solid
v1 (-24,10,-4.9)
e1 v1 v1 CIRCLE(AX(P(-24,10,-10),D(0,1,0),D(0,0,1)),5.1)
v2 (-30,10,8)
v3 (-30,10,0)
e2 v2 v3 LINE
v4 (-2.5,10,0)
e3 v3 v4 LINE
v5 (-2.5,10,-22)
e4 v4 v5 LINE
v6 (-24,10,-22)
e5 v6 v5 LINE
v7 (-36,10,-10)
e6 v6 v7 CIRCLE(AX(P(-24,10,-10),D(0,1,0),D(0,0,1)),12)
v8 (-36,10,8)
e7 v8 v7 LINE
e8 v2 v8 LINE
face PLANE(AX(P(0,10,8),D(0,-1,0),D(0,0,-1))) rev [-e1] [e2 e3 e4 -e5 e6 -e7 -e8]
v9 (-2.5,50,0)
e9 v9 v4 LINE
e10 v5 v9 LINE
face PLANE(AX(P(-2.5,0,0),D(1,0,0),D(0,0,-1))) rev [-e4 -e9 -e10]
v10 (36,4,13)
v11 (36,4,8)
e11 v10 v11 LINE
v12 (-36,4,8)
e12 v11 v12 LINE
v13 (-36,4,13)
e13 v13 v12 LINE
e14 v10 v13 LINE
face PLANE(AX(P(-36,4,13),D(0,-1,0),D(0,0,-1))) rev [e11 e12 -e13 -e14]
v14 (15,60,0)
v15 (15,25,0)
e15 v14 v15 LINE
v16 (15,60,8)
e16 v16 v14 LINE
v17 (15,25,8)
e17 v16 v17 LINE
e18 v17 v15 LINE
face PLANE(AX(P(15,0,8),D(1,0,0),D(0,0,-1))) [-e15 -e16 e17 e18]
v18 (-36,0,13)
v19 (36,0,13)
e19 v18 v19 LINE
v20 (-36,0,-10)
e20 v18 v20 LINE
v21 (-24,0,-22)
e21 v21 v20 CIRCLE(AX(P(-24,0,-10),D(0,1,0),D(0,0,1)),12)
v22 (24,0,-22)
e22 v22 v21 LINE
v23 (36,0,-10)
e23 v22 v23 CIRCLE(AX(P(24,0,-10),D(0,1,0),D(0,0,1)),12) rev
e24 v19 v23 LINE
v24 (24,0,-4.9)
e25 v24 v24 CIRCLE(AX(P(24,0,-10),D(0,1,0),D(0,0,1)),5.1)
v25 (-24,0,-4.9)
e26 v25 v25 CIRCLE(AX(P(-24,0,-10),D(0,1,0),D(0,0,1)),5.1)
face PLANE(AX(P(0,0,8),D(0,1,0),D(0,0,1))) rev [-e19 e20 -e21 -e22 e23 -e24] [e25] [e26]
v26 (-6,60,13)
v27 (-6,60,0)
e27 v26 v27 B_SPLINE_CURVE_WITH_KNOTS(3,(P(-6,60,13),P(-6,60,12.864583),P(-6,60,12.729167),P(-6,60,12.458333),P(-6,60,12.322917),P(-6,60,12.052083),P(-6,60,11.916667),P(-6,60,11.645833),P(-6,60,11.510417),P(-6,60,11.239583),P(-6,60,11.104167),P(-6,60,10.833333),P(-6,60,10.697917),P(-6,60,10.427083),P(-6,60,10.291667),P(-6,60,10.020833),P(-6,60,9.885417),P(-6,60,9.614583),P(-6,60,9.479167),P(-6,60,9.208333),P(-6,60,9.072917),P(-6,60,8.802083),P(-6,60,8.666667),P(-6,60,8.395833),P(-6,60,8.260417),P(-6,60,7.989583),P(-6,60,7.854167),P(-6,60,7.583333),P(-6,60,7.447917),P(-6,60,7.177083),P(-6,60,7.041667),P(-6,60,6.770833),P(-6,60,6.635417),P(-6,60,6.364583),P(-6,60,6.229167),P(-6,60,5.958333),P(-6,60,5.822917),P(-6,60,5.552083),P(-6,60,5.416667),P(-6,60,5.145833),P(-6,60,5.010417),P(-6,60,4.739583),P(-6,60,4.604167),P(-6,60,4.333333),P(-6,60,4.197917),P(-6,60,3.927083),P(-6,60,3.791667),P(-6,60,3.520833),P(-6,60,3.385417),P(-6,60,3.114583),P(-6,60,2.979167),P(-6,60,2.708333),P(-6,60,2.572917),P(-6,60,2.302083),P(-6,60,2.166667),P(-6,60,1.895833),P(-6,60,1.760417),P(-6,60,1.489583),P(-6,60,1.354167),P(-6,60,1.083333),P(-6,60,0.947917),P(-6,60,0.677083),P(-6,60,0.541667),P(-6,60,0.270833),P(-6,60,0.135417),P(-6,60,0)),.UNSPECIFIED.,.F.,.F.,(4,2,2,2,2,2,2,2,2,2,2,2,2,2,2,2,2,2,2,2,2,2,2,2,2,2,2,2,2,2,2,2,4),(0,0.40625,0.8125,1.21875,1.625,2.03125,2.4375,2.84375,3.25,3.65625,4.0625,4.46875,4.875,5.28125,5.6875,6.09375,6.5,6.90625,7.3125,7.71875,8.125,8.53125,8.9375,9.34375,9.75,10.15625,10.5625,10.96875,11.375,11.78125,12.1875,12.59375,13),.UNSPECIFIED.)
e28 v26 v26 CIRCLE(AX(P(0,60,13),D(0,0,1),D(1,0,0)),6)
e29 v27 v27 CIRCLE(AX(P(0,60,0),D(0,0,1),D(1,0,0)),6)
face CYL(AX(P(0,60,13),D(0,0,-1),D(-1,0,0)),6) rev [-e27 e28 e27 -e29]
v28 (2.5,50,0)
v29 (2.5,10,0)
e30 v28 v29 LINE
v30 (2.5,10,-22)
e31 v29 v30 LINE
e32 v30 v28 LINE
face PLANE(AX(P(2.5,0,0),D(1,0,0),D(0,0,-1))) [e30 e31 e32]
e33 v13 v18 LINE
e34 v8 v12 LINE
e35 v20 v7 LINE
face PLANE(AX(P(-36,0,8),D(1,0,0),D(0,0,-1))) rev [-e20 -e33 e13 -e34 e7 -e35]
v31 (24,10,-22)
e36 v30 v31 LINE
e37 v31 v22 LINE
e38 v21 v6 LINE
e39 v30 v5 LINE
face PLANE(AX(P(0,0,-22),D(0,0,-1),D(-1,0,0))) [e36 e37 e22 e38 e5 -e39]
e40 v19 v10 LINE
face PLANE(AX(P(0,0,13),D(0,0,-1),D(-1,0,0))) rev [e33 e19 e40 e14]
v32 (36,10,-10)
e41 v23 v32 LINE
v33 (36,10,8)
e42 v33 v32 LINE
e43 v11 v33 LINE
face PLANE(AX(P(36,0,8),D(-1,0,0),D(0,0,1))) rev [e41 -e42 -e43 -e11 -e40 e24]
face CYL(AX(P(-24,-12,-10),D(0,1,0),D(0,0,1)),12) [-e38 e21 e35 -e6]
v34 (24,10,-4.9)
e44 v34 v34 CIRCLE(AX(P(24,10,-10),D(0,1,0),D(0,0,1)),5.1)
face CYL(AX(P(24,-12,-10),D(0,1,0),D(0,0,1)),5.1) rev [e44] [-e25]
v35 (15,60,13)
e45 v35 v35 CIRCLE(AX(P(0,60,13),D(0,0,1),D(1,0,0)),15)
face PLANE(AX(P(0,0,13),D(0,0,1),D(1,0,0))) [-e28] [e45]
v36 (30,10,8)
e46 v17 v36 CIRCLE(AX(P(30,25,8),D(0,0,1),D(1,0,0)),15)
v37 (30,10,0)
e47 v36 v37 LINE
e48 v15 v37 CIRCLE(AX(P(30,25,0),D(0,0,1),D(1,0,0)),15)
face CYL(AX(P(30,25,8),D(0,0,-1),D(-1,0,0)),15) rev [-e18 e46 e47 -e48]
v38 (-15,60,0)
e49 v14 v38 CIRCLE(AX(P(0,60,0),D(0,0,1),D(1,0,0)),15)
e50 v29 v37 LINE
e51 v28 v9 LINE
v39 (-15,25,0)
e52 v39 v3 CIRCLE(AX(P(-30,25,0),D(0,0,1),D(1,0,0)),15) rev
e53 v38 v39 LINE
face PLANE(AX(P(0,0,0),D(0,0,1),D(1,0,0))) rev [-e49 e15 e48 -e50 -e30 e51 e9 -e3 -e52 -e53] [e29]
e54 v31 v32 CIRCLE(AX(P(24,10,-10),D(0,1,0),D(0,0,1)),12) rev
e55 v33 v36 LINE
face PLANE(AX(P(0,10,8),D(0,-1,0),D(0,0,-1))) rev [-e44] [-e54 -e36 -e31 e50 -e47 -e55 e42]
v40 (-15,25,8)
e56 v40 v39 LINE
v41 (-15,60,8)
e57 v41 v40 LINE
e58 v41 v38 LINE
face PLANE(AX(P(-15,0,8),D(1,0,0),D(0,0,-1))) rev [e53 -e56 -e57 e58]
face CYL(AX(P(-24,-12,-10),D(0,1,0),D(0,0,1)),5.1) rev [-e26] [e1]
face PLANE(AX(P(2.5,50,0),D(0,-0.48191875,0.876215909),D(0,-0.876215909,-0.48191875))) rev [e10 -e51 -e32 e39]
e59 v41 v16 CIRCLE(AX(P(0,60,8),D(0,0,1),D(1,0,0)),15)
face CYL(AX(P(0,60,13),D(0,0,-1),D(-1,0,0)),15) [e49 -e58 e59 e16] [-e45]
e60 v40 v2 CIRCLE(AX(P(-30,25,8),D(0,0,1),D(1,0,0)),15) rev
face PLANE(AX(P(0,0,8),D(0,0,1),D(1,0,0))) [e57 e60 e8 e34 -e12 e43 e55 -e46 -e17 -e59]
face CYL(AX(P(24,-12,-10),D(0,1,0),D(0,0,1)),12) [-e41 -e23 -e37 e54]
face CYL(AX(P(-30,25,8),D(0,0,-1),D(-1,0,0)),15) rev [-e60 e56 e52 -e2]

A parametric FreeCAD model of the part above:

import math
import FreeCAD as App
import Part
import Sketcher

doc = App.newDocument("Part")
params = doc.addObject("Spreadsheet::Sheet", "Params")
for row, (alias, value) in enumerate([
    ("sketch1_radius", "15 mm"),
    ("sketch1_width", "72 mm"),
    ("sketch1_height", "10 mm"),
    ("sketch1_height2", "35 mm"),
    ("pad1_length", "8 mm"),
    ("sketch2_diameter", "30 mm"),
    ("sketch2_diameter2", "12 mm"),
    ("pad2_length", "13 mm"),
    ("sketch3_width", "72 mm"),
    ("sketch3_height", "10 mm"),
    ("pad3_length", "22 mm"),
    ("sketch4_radius", "12 mm"),
    ("sketch4_diameter", "10.2 mm"),
    ("pocket1_length", "22 mm"),
    ("sketch5_width", "72 mm"),
    ("sketch5_height", "4 mm"),
    ("pad4_length", "5 mm"),
    ("sketch6_width", "40 mm"),
    ("sketch6_height", "22 mm"),
    ("pad5_length", "5 mm"),
], start=1):
    params.set(f"A{row}", alias)
    params.set(f"B{row}", "=" + value)
    params.setAlias(f"B{row}", alias)

body = doc.addObject("PartDesign::Body", "Body")

# Sketch on XY plane
sketch1 = doc.addObject("Sketcher::SketchObject", "Sketch")
body.addObject(sketch1)
sketch1.AttachmentSupport = (doc.XY_Plane, [""])
sketch1.MapMode = "FlatFace"
sketch1.addGeometry([
    Part.LineSegment(App.Vector(-36, 10, 0), App.Vector(-36, 0, 0)),  # 0
    Part.LineSegment(App.Vector(-36, 0, 0), App.Vector(36, 0, 0)),  # 1
    Part.LineSegment(App.Vector(36, 0, 0), App.Vector(36, 10, 0)),  # 2
    Part.LineSegment(App.Vector(36, 10, 0), App.Vector(30, 10, 0)),  # 3
    Part.ArcOfCircle(Part.Circle(App.Vector(30, 25, 0), App.Vector(0, 0, 1), 15), math.radians(180), math.radians(270)),  # 4
    Part.LineSegment(App.Vector(15, 25, 0), App.Vector(15, 60, 0)),  # 5
    Part.ArcOfCircle(Part.Circle(App.Vector(0, 60, 0), App.Vector(0, 0, 1), 15), math.radians(180), math.radians(360)),  # 6
    Part.LineSegment(App.Vector(-15, 60, 0), App.Vector(-15, 25, 0)),  # 7
    Part.ArcOfCircle(Part.Circle(App.Vector(-30, 25, 0), App.Vector(0, 0, 1), 15), math.radians(-90), math.radians(0)),  # 8
    Part.LineSegment(App.Vector(-30, 10, 0), App.Vector(-36, 10, 0)),  # 9
], False)
sketch1.addConstraint([
    Sketcher.Constraint("Coincident", 0, 2, 1, 1),
    Sketcher.Constraint("Coincident", 1, 2, 2, 1),
    Sketcher.Constraint("Coincident", 2, 2, 3, 1),
    Sketcher.Constraint("Tangent", 3, 2, 4, 2),
    Sketcher.Constraint("Tangent", 4, 1, 5, 1),
    Sketcher.Constraint("Tangent", 5, 2, 6, 2),
    Sketcher.Constraint("Tangent", 6, 1, 7, 1),
    Sketcher.Constraint("Tangent", 7, 2, 8, 2),
    Sketcher.Constraint("Tangent", 8, 1, 9, 1),
    Sketcher.Constraint("Coincident", 9, 2, 0, 1),
    Sketcher.Constraint("Vertical", 0),
    Sketcher.Constraint("Horizontal", 1),
    Sketcher.Constraint("Vertical", 2),
    Sketcher.Constraint("Horizontal", 3),
    Sketcher.Constraint("Vertical", 5),
    Sketcher.Constraint("Vertical", 7),
    Sketcher.Constraint("Horizontal", 9),
    Sketcher.Constraint("Equal", 4, 6),
    Sketcher.Constraint("Equal", 6, 8),
    Sketcher.Constraint("Symmetric", 0, 2, 1, 2, -1, 1),
    Sketcher.Constraint("Symmetric", 4, 3, 8, 3, -2),
    Sketcher.Constraint("Radius", 4, 15.0),
    Sketcher.Constraint("DistanceX", 1, 1, 1, 2, 72.0),
    Sketcher.Constraint("DistanceY", 0, 2, 0, 1, 10.0),
    Sketcher.Constraint("DistanceY", 5, 1, 5, 2, 35.0),
])
sketch1.setExpression("Constraints[21]", "Params.sketch1_radius")
sketch1.setExpression("Constraints[22]", "Params.sketch1_width")
sketch1.setExpression("Constraints[23]", "Params.sketch1_height")
sketch1.setExpression("Constraints[24]", "Params.sketch1_height2")
pad1 = doc.addObject("PartDesign::Pad", "Pad")
body.addObject(pad1)
pad1.Profile = sketch1
pad1.setExpression("Length", "Params.pad1_length")

# Sketch on XY plane
sketch2 = doc.addObject("Sketcher::SketchObject", "Sketch001")
body.addObject(sketch2)
sketch2.AttachmentSupport = (doc.XY_Plane, [""])
sketch2.MapMode = "FlatFace"
sketch2.addGeometry([
    Part.Circle(App.Vector(0, 60, 0), App.Vector(0, 0, 1), 15),
    Part.Circle(App.Vector(0, 60, 0), App.Vector(0, 0, 1), 6),
], False)
sketch2.addConstraint([
    Sketcher.Constraint("Coincident", 1, 3, 0, 3),
    Sketcher.Constraint("PointOnObject", 0, 3, -2),
    Sketcher.Constraint("Diameter", 0, 30.0),
    Sketcher.Constraint("Diameter", 1, 12.0),
    Sketcher.Constraint("DistanceY", -1, 1, 0, 3, 60.0),
])
sketch2.setExpression("Constraints[2]", "Params.sketch2_diameter")
sketch2.setExpression("Constraints[3]", "Params.sketch2_diameter2")
pad2 = doc.addObject("PartDesign::Pad", "Pad001")
body.addObject(pad2)
pad2.Profile = sketch2
pad2.setExpression("Length", "Params.pad2_length")

# Sketch on XY plane
sketch3 = doc.addObject("Sketcher::SketchObject", "Sketch002")
body.addObject(sketch3)
sketch3.AttachmentSupport = (doc.XY_Plane, [""])
sketch3.MapMode = "FlatFace"
sketch3.addGeometry([
    Part.LineSegment(App.Vector(36, 10, 0), App.Vector(36, 0, 0)),
    Part.LineSegment(App.Vector(36, 0, 0), App.Vector(-36, 0, 0)),
    Part.LineSegment(App.Vector(-36, 0, 0), App.Vector(-36, 10, 0)),
    Part.LineSegment(App.Vector(-36, 10, 0), App.Vector(36, 10, 0)),
], False)
sketch3.addConstraint([
    Sketcher.Constraint("Coincident", 0, 2, 1, 1),
    Sketcher.Constraint("Coincident", 1, 2, 2, 1),
    Sketcher.Constraint("Coincident", 2, 2, 3, 1),
    Sketcher.Constraint("Coincident", 3, 2, 0, 1),
    Sketcher.Constraint("Vertical", 0),
    Sketcher.Constraint("Horizontal", 1),
    Sketcher.Constraint("Vertical", 2),
    Sketcher.Constraint("Horizontal", 3),
    Sketcher.Constraint("Symmetric", 0, 2, 1, 2, -1, 1),
    Sketcher.Constraint("DistanceX", 1, 2, 1, 1, 72.0),
    Sketcher.Constraint("DistanceY", 0, 2, 0, 1, 10.0),
])
sketch3.setExpression("Constraints[9]", "Params.sketch3_width")
sketch3.setExpression("Constraints[10]", "Params.sketch3_height")
pad3 = doc.addObject("PartDesign::Pad", "Pad002")
body.addObject(pad3)
pad3.Profile = sketch3
pad3.setExpression("Length", "Params.pad3_length")
pad3.Reversed = True

# Sketch on XZ plane
sketch4 = doc.addObject("Sketcher::SketchObject", "Sketch003")
body.addObject(sketch4)
sketch4.AttachmentSupport = (doc.XZ_Plane, [""])
sketch4.MapMode = "FlatFace"
sketch4.AttachmentOffset = App.Placement(App.Vector(0, 0, -10), App.Rotation())
sketch4.addGeometry([
    Part.LineSegment(App.Vector(36, -22, 0), App.Vector(24, -22, 0)),  # 0
    Part.ArcOfCircle(Part.Circle(App.Vector(24, -10, 0), App.Vector(0, 0, 1), 12), math.radians(-90), math.radians(0)),  # 1
    Part.LineSegment(App.Vector(36, -10, 0), App.Vector(36, -22, 0)),  # 2
    Part.Circle(App.Vector(24, -10, 0), App.Vector(0, 0, 1), 5),  # 3
    Part.Circle(App.Vector(-24, -10, 0), App.Vector(0, 0, 1), 5),  # 4
    Part.ArcOfCircle(Part.Circle(App.Vector(-24, -10, 0), App.Vector(0, 0, 1), 12), math.radians(-180), math.radians(-90)),  # 5
    Part.LineSegment(App.Vector(-24, -22, 0), App.Vector(-36, -22, 0)),  # 6
    Part.LineSegment(App.Vector(-36, -22, 0), App.Vector(-36, -10, 0)),  # 7
], False)
sketch4.addConstraint([
    Sketcher.Constraint("Tangent", 0, 2, 1, 1),
    Sketcher.Constraint("Tangent", 1, 2, 2, 1),
    Sketcher.Constraint("Coincident", 2, 2, 0, 1),
    Sketcher.Constraint("Tangent", 5, 2, 6, 1),
    Sketcher.Constraint("Coincident", 6, 2, 7, 1),
    Sketcher.Constraint("Tangent", 7, 2, 5, 1),
    Sketcher.Constraint("Horizontal", 0),
    Sketcher.Constraint("Vertical", 2),
    Sketcher.Constraint("Horizontal", 6),
    Sketcher.Constraint("Vertical", 7),
    Sketcher.Constraint("Coincident", 3, 3, 1, 3),
    Sketcher.Constraint("Coincident", 5, 3, 4, 3),
    Sketcher.Constraint("Equal", 3, 4),
    Sketcher.Constraint("Equal", 1, 5),
    Sketcher.Constraint("Symmetric", 1, 3, 4, 3, -2),
    Sketcher.Constraint("Radius", 1, 12.0),
    Sketcher.Constraint("Diameter", 3, 10.2),
    Sketcher.Constraint("DistanceX", -1, 1, 1, 3, 24.0),
    Sketcher.Constraint("DistanceY", 1, 3, -1, 1, 10.0),
])
sketch4.setExpression("Constraints[15]", "Params.sketch4_radius")
sketch4.setExpression("Constraints[16]", "Params.sketch4_diameter")
pocket1 = doc.addObject("PartDesign::Pocket", "Pocket")
body.addObject(pocket1)
pocket1.Profile = sketch4
pocket1.setExpression("Length", "Params.pocket1_length")
pocket1.Reversed = True

# Sketch on XY plane
sketch5 = doc.addObject("Sketcher::SketchObject", "Sketch004")
body.addObject(sketch5)
sketch5.AttachmentSupport = (doc.XY_Plane, [""])
sketch5.MapMode = "FlatFace"
sketch5.AttachmentOffset = App.Placement(App.Vector(0, 0, 8), App.Rotation())
sketch5.addGeometry([
    Part.LineSegment(App.Vector(-36, 4, 0), App.Vector(-36, 0, 0)),
    Part.LineSegment(App.Vector(-36, 0, 0), App.Vector(36, 0, 0)),
    Part.LineSegment(App.Vector(36, 0, 0), App.Vector(36, 4, 0)),
    Part.LineSegment(App.Vector(36, 4, 0), App.Vector(-36, 4, 0)),
], False)
sketch5.addConstraint([
    Sketcher.Constraint("Coincident", 0, 2, 1, 1),
    Sketcher.Constraint("Coincident", 1, 2, 2, 1),
    Sketcher.Constraint("Coincident", 2, 2, 3, 1),
    Sketcher.Constraint("Coincident", 3, 2, 0, 1),
    Sketcher.Constraint("Vertical", 0),
    Sketcher.Constraint("Horizontal", 1),
    Sketcher.Constraint("Vertical", 2),
    Sketcher.Constraint("Horizontal", 3),
    Sketcher.Constraint("Symmetric", 0, 2, 1, 2, -1, 1),
    Sketcher.Constraint("DistanceX", 1, 1, 1, 2, 72.0),
    Sketcher.Constraint("DistanceY", 0, 2, 0, 1, 4.0),
])
sketch5.setExpression("Constraints[9]", "Params.sketch5_width")
sketch5.setExpression("Constraints[10]", "Params.sketch5_height")
pad4 = doc.addObject("PartDesign::Pad", "Pad003")
body.addObject(pad4)
pad4.Profile = sketch5
pad4.setExpression("Length", "Params.pad4_length")

# Sketch on YZ plane
sketch6 = doc.addObject("Sketcher::SketchObject", "Sketch005")
body.addObject(sketch6)
sketch6.AttachmentSupport = (doc.YZ_Plane, [""])
sketch6.MapMode = "FlatFace"
sketch6.addGeometry([
    Part.LineSegment(App.Vector(50, 0, 0), App.Vector(10, 0, 0)),
    Part.LineSegment(App.Vector(10, 0, 0), App.Vector(10, -22, 0)),
    Part.LineSegment(App.Vector(10, -22, 0), App.Vector(50, 0, 0)),
], False)
sketch6.addConstraint([
    Sketcher.Constraint("Coincident", 0, 2, 1, 1),
    Sketcher.Constraint("Coincident", 1, 2, 2, 1),
    Sketcher.Constraint("Coincident", 2, 2, 0, 1),
    Sketcher.Constraint("Horizontal", 0),
    Sketcher.Constraint("Vertical", 1),
    Sketcher.Constraint("PointOnObject", 0, 2, -1),
    Sketcher.Constraint("DistanceX", 0, 2, 0, 1, 40.0),
    Sketcher.Constraint("DistanceY", 1, 2, 1, 1, 22.0),
    Sketcher.Constraint("DistanceX", -1, 1, 0, 2, 10.0),
])
sketch6.setExpression("Constraints[6]", "Params.sketch6_width")
sketch6.setExpression("Constraints[7]", "Params.sketch6_height")
pad5 = doc.addObject("PartDesign::Pad", "Pad004")
body.addObject(pad5)
pad5.Profile = sketch6
pad5.setExpression("Length", "Params.pad5_length")
pad5.Midplane = True

doc.recompute()
